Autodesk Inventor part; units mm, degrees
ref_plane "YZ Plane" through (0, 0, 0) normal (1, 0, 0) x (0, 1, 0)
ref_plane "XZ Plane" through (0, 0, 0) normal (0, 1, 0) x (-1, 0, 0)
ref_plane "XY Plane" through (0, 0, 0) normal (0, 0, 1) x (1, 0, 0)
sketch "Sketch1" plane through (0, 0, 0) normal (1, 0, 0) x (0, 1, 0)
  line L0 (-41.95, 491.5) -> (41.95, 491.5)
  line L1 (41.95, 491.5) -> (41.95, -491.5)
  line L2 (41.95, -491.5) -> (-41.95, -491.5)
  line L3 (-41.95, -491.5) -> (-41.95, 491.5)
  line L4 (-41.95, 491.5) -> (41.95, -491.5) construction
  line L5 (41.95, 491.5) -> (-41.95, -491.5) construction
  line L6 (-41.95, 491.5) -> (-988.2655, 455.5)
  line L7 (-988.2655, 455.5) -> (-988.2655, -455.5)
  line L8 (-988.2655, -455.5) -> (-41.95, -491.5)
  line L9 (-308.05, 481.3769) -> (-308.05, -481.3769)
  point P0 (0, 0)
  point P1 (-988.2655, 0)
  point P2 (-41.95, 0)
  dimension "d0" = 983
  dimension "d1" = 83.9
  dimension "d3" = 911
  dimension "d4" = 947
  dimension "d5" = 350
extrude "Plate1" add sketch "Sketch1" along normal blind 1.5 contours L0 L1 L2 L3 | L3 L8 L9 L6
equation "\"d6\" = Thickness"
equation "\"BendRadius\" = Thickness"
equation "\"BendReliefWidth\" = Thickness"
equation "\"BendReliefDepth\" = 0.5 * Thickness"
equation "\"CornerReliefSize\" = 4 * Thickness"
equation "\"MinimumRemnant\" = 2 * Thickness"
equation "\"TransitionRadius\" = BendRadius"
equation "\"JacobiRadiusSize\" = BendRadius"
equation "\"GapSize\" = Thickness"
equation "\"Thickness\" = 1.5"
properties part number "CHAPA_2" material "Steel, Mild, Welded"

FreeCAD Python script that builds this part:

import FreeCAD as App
import Part
import Sketcher

V = App.Vector

doc = App.newDocument("Part")
body = doc.addObject("PartDesign::Body", "Body")

# Sketch on YZ plane
sketch1 = doc.addObject("Sketcher::SketchObject", "Sketch")
body.addObject(sketch1)
sketch1.AttachmentSupport = (doc.YZ_Plane, [""])
sketch1.MapMode = "FlatFace"
sketch1.addGeometry(Part.LineSegment(V(41.95, 491.5, 0), V(-41.95, 491.5, 0)), False)
sketch1.addGeometry(Part.LineSegment(V(-41.95, 491.5, 0), V(-308.050002, 481.376949, 0)), False)
sketch1.addGeometry(Part.LineSegment(V(-308.05, 481.3769, 0), V(-308.05, -481.3769, 0)), False)
sketch1.addGeometry(Part.LineSegment(V(-308.050002, -481.376949, 0), V(-41.95, -491.5, 0)), False)
sketch1.addGeometry(Part.LineSegment(V(-41.95, -491.5, 0), V(41.95, -491.5, 0)), False)
sketch1.addGeometry(Part.LineSegment(V(41.95, -491.5, 0), V(41.95, 491.5, 0)), False)
sketch1.addConstraint(Sketcher.Constraint("Coincident", 0, 2, 1, 1))
sketch1.addConstraint(Sketcher.Constraint("Coincident", 1, 2, 2, 1))
sketch1.addConstraint(Sketcher.Constraint("Coincident", 2, 2, 3, 1))
sketch1.addConstraint(Sketcher.Constraint("Coincident", 3, 2, 4, 1))
sketch1.addConstraint(Sketcher.Constraint("Coincident", 4, 2, 5, 1))
sketch1.addConstraint(Sketcher.Constraint("Coincident", 5, 2, 0, 1))
sketch1.addConstraint(Sketcher.Constraint("Horizontal", 0))
sketch1.addConstraint(Sketcher.Constraint("Vertical", 2))
sketch1.addConstraint(Sketcher.Constraint("Horizontal", 4))
sketch1.addConstraint(Sketcher.Constraint("Vertical", 5))
sketch1.addConstraint(Sketcher.Constraint("Symmetric", 0, 2, 4, 2, -1, 1))
sketch1.addConstraint(Sketcher.Constraint("Vertical", 0, 2, 3, 2))
sketch1.addConstraint(Sketcher.Constraint("Equal", 1, 3))
sketch1.addConstraint(Sketcher.Constraint("DistanceY", 5, 1, 5, 2, 983.0))
sketch1.addConstraint(Sketcher.Constraint("DistanceX", 0, 2, 0, 1, 83.9))
sketch1.addConstraint(Sketcher.Constraint("DistanceX", 2, 2, 4, 2, 350.0))
sketch1.addConstraint(Sketcher.Constraint("DistanceY", 2, 2, 2, 1, 962.7538))
pad1 = doc.addObject("PartDesign::Pad", "Pad")
body.addObject(pad1)
pad1.Profile = sketch1
pad1.Length = 1.5

doc.recompute()
